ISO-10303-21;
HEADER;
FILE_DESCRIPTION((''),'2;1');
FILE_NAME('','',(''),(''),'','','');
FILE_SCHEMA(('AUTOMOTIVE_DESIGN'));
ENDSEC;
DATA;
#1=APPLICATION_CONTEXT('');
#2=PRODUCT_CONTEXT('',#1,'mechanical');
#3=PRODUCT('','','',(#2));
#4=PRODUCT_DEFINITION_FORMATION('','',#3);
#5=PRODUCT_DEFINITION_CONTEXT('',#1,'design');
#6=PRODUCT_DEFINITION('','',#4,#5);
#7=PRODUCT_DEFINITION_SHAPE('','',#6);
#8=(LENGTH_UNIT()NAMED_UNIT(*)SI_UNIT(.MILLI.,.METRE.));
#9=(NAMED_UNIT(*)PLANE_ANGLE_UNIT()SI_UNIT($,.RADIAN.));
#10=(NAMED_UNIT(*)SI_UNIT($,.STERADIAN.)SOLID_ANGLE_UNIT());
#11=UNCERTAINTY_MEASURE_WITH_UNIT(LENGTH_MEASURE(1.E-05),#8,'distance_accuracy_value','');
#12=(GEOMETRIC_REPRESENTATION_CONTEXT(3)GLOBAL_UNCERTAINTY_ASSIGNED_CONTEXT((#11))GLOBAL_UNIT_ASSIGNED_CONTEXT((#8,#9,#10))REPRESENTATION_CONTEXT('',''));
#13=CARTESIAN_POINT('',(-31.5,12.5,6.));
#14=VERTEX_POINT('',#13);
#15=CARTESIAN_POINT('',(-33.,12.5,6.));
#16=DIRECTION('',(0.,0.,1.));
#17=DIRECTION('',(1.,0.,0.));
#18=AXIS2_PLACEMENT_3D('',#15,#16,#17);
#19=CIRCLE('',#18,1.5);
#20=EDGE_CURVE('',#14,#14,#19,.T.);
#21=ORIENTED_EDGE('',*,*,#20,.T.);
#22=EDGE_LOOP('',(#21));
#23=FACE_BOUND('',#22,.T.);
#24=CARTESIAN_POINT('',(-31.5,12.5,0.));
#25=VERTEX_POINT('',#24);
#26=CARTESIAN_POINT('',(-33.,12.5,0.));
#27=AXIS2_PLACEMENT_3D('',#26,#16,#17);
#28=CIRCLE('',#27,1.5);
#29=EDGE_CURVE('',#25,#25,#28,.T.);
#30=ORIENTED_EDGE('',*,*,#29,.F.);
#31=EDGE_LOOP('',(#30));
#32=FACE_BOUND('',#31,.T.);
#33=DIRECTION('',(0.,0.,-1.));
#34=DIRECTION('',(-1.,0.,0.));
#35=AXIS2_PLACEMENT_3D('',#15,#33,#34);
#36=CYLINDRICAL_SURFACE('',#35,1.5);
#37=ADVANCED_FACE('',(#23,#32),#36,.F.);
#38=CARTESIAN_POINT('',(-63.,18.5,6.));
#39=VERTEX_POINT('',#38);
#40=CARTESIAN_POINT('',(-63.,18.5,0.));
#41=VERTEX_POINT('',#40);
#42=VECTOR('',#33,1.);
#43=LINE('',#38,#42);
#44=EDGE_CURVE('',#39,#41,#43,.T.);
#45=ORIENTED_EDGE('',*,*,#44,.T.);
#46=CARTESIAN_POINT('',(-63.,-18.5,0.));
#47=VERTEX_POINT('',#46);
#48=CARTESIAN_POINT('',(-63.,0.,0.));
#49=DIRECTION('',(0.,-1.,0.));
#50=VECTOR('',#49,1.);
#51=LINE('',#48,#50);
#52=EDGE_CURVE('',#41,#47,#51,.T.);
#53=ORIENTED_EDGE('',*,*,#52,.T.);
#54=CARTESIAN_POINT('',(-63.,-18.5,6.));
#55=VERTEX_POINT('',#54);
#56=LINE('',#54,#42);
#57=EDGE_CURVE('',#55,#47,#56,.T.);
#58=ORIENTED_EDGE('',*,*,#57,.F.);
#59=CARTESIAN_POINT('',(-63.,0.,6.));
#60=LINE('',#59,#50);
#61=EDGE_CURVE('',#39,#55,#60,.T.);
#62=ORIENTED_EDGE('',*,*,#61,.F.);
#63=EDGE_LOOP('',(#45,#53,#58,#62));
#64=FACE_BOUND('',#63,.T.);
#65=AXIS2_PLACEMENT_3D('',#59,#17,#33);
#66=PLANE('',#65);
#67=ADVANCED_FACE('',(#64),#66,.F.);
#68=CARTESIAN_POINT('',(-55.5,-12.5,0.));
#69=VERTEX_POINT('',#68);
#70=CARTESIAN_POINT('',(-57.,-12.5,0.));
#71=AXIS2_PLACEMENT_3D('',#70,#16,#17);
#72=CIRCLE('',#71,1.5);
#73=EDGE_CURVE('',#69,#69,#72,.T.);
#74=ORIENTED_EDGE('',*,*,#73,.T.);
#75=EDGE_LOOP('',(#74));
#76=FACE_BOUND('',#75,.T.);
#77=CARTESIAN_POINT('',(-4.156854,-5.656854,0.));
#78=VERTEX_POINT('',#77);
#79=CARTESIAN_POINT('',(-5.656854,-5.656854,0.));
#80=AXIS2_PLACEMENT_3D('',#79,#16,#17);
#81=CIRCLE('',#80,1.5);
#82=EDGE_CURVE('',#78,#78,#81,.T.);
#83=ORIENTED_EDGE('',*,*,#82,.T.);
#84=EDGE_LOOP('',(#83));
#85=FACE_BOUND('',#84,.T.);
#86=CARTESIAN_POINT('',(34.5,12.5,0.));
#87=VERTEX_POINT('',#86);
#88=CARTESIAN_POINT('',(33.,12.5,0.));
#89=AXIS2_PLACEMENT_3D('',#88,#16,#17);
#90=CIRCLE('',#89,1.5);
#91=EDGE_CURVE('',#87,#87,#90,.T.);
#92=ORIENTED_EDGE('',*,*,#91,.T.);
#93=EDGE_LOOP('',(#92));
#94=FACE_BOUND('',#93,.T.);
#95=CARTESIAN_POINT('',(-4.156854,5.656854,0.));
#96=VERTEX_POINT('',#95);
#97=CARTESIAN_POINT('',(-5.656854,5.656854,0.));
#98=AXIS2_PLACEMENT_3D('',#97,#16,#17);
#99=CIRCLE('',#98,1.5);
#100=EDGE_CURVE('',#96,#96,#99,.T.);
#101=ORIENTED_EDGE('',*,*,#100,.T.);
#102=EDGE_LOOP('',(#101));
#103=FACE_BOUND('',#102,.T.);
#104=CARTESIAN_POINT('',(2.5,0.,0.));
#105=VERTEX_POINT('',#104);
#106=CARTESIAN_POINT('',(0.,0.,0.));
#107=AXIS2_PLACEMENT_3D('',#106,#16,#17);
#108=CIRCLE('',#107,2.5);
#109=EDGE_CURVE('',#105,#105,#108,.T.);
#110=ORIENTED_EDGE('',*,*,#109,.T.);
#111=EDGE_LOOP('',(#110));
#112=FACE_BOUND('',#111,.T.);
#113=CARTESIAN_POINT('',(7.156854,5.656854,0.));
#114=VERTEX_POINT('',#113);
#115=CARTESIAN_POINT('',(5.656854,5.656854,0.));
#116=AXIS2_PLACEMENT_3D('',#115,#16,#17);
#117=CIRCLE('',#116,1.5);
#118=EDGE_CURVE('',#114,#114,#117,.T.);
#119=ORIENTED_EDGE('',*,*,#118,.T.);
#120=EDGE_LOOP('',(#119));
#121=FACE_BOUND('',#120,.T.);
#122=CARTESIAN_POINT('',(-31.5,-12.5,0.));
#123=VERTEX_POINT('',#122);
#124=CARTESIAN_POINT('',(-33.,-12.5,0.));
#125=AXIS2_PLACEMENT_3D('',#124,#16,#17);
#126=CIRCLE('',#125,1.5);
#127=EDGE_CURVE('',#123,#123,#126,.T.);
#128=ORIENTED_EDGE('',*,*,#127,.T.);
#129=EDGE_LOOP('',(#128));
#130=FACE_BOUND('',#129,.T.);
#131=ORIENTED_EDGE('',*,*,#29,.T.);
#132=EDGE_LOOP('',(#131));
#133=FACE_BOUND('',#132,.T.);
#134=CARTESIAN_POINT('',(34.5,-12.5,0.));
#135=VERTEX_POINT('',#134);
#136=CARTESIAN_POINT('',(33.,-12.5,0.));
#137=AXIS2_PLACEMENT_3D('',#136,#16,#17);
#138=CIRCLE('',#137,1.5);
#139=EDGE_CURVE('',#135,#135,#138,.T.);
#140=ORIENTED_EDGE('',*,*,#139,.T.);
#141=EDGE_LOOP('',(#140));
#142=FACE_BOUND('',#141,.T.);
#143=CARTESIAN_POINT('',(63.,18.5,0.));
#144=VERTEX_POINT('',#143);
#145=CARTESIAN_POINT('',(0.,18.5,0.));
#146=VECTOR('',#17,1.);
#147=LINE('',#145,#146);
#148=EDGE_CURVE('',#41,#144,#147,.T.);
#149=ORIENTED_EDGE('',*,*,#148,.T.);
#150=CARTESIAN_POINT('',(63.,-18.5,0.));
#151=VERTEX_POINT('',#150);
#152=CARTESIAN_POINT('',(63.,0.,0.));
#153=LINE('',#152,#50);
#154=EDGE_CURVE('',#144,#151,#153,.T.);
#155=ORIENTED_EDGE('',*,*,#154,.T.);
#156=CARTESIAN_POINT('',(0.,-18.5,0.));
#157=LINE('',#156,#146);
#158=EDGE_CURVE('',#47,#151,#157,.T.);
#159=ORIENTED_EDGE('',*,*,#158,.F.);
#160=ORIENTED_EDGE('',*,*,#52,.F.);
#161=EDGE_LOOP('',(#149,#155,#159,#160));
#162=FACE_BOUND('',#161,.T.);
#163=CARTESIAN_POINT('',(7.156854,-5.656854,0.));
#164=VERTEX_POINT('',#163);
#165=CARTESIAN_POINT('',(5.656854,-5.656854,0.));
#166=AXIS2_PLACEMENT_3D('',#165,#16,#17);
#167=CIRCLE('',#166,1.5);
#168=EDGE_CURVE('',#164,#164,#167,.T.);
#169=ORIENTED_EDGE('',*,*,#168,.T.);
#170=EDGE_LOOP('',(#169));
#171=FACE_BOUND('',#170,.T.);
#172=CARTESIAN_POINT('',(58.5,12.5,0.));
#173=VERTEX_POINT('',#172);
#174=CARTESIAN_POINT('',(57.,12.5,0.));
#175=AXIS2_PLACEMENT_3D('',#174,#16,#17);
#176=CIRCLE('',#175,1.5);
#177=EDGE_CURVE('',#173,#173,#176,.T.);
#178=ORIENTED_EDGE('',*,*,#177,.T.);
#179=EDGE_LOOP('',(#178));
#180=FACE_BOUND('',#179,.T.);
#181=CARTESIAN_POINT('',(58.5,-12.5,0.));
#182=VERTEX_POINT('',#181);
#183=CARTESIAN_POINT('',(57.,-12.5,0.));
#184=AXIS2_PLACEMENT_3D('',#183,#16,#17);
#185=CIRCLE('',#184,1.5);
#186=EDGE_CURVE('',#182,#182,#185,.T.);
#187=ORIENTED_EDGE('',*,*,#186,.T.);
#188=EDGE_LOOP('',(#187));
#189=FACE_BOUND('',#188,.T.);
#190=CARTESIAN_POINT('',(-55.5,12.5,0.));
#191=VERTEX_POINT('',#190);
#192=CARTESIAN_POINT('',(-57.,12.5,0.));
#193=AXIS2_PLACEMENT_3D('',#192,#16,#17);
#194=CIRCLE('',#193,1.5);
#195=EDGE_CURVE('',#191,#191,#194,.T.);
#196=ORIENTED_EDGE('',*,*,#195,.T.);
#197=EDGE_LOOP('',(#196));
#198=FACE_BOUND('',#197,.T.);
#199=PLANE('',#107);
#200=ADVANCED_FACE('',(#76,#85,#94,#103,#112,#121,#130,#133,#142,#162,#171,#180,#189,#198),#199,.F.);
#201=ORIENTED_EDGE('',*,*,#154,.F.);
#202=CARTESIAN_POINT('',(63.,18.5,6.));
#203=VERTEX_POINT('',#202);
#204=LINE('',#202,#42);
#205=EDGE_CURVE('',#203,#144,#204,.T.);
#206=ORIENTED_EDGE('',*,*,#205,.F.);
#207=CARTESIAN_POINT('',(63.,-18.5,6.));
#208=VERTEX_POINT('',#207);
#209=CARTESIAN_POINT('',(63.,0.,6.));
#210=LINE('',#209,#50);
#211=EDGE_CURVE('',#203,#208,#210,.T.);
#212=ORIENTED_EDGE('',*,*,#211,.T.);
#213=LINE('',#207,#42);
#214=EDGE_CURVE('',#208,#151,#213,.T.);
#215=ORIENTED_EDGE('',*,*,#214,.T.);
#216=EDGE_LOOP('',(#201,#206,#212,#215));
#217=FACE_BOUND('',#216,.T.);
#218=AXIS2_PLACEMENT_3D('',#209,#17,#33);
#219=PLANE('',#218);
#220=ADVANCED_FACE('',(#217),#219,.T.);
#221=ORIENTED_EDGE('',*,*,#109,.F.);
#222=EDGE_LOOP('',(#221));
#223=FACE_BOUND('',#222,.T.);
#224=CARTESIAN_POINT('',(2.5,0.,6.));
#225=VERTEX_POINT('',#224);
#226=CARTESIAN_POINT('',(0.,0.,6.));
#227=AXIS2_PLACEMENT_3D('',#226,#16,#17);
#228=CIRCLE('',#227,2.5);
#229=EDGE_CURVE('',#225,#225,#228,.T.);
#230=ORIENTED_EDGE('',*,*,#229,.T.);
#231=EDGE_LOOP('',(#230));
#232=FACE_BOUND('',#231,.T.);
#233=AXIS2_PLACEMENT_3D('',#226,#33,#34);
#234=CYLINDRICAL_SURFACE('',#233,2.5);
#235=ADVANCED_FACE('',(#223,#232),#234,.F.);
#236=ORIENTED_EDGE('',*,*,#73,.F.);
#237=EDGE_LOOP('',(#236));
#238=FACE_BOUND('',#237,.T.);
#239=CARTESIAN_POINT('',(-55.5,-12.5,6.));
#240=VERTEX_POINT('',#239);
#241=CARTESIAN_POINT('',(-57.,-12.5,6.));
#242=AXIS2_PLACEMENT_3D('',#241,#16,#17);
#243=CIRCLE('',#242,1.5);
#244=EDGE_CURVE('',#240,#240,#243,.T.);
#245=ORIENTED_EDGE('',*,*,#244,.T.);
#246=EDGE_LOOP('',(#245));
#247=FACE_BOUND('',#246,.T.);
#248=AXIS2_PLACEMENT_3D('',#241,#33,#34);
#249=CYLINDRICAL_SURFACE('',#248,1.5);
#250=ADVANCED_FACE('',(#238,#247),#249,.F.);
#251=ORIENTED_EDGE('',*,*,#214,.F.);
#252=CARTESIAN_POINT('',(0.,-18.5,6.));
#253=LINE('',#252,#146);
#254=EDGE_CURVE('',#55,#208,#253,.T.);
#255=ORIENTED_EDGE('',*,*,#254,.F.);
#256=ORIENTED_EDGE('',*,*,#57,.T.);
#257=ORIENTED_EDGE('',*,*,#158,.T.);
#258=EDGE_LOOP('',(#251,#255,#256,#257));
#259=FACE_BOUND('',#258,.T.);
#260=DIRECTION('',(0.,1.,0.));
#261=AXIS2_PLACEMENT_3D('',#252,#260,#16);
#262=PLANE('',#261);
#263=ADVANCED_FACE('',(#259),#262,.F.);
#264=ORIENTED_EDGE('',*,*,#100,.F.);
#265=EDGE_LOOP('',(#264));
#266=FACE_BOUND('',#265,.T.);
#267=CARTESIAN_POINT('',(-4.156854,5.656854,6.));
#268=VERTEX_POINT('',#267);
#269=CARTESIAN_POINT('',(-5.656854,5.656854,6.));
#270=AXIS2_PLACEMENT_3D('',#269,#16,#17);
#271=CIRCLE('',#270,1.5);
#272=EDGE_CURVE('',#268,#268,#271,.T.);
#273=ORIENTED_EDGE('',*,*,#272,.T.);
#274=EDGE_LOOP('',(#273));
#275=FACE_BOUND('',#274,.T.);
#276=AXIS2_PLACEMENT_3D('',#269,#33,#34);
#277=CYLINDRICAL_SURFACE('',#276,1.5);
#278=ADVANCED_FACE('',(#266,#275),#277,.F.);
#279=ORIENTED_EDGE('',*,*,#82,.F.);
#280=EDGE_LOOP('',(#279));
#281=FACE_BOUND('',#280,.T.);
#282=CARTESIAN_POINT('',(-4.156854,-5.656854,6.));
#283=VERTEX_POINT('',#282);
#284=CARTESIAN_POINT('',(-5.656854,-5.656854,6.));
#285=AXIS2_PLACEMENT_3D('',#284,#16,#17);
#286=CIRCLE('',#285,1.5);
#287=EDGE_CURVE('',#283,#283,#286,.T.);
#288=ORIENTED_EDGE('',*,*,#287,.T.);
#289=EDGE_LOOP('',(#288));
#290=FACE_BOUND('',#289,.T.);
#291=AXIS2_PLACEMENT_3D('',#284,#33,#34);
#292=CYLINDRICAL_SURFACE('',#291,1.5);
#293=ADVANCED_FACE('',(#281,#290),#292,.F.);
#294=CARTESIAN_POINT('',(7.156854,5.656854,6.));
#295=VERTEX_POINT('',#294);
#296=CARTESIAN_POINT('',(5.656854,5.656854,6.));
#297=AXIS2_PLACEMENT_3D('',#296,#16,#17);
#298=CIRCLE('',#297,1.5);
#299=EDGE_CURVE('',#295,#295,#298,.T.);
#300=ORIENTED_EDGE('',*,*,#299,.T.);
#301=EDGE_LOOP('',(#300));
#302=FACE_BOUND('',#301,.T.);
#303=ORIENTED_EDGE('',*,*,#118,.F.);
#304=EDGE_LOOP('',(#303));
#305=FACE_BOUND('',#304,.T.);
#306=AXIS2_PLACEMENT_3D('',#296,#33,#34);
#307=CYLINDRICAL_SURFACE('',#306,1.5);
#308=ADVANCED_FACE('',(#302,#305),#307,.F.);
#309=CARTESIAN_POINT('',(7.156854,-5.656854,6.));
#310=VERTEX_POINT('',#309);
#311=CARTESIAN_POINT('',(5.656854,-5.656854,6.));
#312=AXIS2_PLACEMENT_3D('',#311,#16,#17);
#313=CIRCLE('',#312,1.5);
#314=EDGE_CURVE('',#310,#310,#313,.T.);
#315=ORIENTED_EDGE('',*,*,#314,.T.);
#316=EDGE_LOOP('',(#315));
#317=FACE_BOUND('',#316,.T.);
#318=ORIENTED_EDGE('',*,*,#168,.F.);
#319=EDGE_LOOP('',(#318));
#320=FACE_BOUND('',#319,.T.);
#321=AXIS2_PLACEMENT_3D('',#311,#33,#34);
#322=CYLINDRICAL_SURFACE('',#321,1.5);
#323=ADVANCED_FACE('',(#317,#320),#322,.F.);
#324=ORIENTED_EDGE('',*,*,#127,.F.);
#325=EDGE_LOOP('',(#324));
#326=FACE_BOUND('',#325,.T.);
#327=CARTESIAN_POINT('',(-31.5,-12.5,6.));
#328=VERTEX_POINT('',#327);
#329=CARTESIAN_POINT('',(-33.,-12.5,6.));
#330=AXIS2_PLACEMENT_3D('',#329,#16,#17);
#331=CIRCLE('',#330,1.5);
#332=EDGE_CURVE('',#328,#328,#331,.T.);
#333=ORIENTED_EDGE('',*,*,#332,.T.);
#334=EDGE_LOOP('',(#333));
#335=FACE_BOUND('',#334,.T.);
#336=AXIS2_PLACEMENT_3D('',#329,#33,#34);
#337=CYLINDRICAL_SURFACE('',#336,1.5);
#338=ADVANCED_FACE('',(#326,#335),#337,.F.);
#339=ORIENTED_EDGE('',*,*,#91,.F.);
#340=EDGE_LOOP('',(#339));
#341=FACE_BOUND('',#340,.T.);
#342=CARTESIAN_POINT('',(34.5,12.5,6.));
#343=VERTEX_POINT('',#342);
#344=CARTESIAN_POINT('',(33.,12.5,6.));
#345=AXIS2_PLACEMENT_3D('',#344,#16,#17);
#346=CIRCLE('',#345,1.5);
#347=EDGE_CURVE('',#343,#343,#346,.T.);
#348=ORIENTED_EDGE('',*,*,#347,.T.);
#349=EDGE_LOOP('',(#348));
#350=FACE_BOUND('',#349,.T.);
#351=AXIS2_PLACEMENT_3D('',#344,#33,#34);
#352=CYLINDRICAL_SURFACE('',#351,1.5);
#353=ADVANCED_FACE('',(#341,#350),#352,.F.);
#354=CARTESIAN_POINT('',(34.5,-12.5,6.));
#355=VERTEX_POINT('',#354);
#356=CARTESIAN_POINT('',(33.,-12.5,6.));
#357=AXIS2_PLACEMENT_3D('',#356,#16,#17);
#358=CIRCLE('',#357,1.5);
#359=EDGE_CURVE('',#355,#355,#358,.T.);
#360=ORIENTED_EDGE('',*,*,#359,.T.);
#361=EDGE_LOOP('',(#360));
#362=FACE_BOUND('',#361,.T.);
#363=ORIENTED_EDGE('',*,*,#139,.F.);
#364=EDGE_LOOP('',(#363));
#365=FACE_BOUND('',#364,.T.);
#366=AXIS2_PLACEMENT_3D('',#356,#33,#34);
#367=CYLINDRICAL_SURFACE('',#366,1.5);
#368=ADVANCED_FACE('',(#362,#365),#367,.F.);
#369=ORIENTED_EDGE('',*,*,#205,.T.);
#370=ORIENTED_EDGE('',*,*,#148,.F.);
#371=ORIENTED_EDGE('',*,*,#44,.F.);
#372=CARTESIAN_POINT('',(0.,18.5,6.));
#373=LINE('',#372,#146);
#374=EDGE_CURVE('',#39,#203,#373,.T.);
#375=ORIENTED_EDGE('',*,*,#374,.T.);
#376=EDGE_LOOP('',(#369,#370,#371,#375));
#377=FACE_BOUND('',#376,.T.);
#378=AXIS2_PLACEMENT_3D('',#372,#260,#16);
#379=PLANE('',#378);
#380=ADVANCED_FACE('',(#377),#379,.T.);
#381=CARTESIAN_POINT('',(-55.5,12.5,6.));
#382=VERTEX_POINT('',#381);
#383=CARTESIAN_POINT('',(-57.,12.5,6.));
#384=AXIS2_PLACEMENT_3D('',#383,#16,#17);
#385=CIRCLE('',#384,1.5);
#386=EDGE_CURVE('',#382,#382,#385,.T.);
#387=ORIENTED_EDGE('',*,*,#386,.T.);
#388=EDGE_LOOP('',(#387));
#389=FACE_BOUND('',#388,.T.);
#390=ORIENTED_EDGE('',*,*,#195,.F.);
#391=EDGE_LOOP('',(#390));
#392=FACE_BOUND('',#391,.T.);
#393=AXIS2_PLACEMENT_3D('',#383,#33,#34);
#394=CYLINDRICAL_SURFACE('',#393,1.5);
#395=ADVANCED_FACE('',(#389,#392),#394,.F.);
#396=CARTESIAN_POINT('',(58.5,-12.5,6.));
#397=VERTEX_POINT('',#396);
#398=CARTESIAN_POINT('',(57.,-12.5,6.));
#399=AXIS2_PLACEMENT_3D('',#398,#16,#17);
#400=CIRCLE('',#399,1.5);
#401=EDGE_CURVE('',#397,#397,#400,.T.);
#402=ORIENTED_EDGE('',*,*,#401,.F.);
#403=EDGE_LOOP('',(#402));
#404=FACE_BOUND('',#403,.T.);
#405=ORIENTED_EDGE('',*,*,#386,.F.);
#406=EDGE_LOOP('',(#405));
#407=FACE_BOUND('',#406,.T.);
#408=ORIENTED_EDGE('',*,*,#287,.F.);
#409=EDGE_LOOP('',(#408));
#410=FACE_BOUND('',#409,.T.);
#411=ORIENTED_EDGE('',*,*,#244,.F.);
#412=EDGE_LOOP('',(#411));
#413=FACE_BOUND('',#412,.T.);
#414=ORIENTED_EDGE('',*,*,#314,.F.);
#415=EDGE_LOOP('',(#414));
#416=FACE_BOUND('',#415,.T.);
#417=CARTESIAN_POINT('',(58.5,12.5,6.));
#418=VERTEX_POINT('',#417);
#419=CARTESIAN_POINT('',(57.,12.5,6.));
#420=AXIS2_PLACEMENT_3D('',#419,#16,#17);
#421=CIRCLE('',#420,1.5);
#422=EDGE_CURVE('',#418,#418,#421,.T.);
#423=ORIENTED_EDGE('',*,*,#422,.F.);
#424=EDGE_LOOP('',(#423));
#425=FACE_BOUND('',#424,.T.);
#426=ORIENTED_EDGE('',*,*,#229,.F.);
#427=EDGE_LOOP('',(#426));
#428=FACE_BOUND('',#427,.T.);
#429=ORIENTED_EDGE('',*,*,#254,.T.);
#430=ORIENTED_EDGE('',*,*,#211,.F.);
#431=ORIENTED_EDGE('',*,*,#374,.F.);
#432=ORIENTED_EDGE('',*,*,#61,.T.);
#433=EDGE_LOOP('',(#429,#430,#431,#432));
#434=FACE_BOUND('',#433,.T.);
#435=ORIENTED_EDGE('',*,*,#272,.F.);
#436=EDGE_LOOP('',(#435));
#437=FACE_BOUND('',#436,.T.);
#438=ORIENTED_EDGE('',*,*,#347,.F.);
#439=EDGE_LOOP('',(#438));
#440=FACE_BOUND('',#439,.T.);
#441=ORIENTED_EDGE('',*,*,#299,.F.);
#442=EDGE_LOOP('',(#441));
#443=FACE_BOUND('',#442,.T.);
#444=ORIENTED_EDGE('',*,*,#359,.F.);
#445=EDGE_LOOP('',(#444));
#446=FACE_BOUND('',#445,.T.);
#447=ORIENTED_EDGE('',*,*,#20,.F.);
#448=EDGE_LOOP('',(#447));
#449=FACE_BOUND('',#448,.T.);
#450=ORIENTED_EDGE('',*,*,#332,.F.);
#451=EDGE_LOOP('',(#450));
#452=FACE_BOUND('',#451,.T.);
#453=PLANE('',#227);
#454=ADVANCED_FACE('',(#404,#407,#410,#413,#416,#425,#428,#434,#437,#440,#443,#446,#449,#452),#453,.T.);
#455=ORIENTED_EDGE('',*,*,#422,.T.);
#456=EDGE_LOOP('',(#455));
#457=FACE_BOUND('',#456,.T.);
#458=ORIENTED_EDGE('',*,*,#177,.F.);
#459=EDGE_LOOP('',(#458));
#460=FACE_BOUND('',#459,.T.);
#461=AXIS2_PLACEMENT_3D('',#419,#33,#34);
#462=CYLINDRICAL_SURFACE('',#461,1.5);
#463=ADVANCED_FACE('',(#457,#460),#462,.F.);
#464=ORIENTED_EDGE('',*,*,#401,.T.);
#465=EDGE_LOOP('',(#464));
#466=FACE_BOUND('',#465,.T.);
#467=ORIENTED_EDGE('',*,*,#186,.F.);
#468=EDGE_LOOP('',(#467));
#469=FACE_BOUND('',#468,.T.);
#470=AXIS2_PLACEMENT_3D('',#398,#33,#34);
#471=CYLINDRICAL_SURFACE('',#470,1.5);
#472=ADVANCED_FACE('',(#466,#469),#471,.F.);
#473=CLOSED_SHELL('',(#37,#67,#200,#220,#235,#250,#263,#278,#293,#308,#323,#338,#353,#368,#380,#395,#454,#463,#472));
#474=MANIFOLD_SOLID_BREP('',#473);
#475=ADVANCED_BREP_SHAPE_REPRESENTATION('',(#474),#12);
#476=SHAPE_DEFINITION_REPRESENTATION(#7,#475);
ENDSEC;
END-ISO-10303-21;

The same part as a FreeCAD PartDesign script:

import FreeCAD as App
import Part
import Sketcher

V = App.Vector


def add_polygon(sketch, points):
    """Adds a closed chain of lines whose ends are joined by coincident constraints."""
    first, n = sketch.GeometryCount, len(points)
    for a, b in zip(points, points[1:] + points[:1]):
        sketch.addGeometry(Part.LineSegment(App.Vector(*a, 0), App.Vector(*b, 0)), False)
    for i in range(n):
        sketch.addConstraint(Sketcher.Constraint("Coincident", first + i, 2, first + (i + 1) % n, 1))

doc = App.newDocument("Part")
body = doc.addObject("PartDesign::Body", "Body")

# Sketch on XY plane
sketch1 = body.newObject("Sketcher::SketchObject", "Sketch")
sketch1.AttachmentSupport = (doc.getObject("XY_Plane"), [""])
sketch1.MapMode = "FlatFace"
add_polygon(sketch1, [(-63, 18.5), (-63, -18.5), (63, -18.5), (63, 18.5)])  # lines 0-3
sketch1.addGeometry(Part.Circle(V(-57, -12.5, 0), V(0, 0, 1), 1.5), False)  # 4
sketch1.addGeometry(Part.Circle(V(-33, -12.5, 0), V(0, 0, 1), 1.5), False)  # 5
sketch1.addGeometry(Part.Circle(V(-5.7, -5.7, 0), V(0, 0, 1), 1.5), False)  # 6
sketch1.addGeometry(Part.Circle(V(33, -12.5, 0), V(0, 0, 1), 1.5), False)  # 7
sketch1.addGeometry(Part.Circle(V(57, -12.5, 0), V(0, 0, 1), 1.5), False)  # 8
sketch1.addGeometry(Part.Circle(V(5.7, -5.7, 0), V(0, 0, 1), 1.5), False)  # 9
sketch1.addGeometry(Part.Circle(V(-5.7, 5.7, 0), V(0, 0, 1), 1.5), False)  # 10
sketch1.addGeometry(Part.Circle(V(-57, 12.5, 0), V(0, 0, 1), 1.5), False)  # 11
sketch1.addGeometry(Part.Circle(V(-33, 12.5, 0), V(0, 0, 1), 1.5), False)  # 12
sketch1.addGeometry(Part.Circle(V(0, 0, 0), V(0, 0, 1), 2.5), False)  # 13
sketch1.addGeometry(Part.Circle(V(5.7, 5.7, 0), V(0, 0, 1), 1.5), False)  # 14
sketch1.addGeometry(Part.Circle(V(33, 12.5, 0), V(0, 0, 1), 1.5), False)  # 15
sketch1.addGeometry(Part.Circle(V(57, 12.5, 0), V(0, 0, 1), 1.5), False)  # 16
sketch1.addConstraint([
    Sketcher.Constraint("Vertical", 0),
    Sketcher.Constraint("Horizontal", 1),
    Sketcher.Constraint("Vertical", 2),
    Sketcher.Constraint("Horizontal", 3),
    Sketcher.Constraint("Coincident", 13, 3, -1, 1),
    Sketcher.Constraint("Equal", 4, 5),
    Sketcher.Constraint("Equal", 5, 6),
    Sketcher.Constraint("Equal", 6, 7),
    Sketcher.Constraint("Equal", 7, 8),
    Sketcher.Constraint("Equal", 8, 9),
    Sketcher.Constraint("Equal", 9, 10),
    Sketcher.Constraint("Equal", 10, 11),
    Sketcher.Constraint("Equal", 11, 12),
    Sketcher.Constraint("Equal", 12, 14),
    Sketcher.Constraint("Equal", 14, 15),
    Sketcher.Constraint("Equal", 15, 16),
    Sketcher.Constraint("Symmetric", 9, 3, 10, 3, -1, 1),
    Sketcher.Constraint("Symmetric", 8, 3, 11, 3, -1, 1),
    Sketcher.Constraint("Symmetric", 7, 3, 12, 3, -1, 1),
    Sketcher.Constraint("Symmetric", 6, 3, 14, 3, -1, 1),
    Sketcher.Constraint("Symmetric", 5, 3, 15, 3, -1, 1),
    Sketcher.Constraint("Symmetric", 4, 3, 16, 3, -1, 1),
    Sketcher.Constraint("Symmetric", 0, 2, 2, 2, -1, 1),
    Sketcher.Constraint("Symmetric", 5, 3, 7, 3, -2),
    Sketcher.Constraint("Symmetric", 4, 3, 8, 3, -2),
    Sketcher.Constraint("Symmetric", 6, 3, 9, 3, -2),
    Sketcher.Constraint("Horizontal", 4, 3, 5, 3),
    Sketcher.Constraint("Diameter", 4, 3.0),
    Sketcher.Constraint("Diameter", 13, 5.0),
    Sketcher.Constraint("DistanceX", 1, 1, 1, 2, 126.0),
    Sketcher.Constraint("DistanceY", 0, 2, 0, 1, 37.0),
    Sketcher.Constraint("DistanceX", 4, 3, -1, 1, 57.0),
    Sketcher.Constraint("DistanceX", 5, 3, -1, 1, 33.0),
    Sketcher.Constraint("DistanceY", 4, 3, 11, 3, 25.0),
    Sketcher.Constraint("DistanceX", 6, 3, 9, 3, 11.313708),
    Sketcher.Constraint("DistanceY", 6, 3, 10, 3, 11.313708),
])
pad1 = body.newObject("PartDesign::Pad", "Pad")
pad1.Profile = sketch1
pad1.Length = 6

doc.recompute()
